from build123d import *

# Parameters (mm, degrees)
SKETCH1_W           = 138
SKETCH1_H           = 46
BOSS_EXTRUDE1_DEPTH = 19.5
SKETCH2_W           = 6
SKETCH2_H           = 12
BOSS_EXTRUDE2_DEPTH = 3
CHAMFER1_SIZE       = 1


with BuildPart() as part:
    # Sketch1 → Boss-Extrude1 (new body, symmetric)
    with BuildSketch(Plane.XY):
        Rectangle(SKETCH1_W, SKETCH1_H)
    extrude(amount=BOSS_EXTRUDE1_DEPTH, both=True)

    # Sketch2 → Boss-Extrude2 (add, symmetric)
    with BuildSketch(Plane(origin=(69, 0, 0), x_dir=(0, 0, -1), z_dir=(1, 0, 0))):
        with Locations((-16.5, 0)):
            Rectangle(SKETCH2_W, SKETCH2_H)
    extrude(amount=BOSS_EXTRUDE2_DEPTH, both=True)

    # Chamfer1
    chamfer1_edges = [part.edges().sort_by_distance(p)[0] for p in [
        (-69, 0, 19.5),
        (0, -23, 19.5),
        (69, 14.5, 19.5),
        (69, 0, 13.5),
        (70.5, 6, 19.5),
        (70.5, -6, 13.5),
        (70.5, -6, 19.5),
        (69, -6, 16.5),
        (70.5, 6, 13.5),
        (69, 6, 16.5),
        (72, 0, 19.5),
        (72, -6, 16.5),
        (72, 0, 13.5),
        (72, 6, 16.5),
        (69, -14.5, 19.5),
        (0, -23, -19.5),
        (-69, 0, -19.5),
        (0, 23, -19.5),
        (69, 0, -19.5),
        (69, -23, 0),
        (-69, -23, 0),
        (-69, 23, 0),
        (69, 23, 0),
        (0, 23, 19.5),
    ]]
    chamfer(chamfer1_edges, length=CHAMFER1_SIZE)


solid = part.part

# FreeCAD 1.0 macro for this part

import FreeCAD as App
import Part
import Sketcher
Q = App.Units.Quantity

doc = App.newDocument("Part")
params = doc.addObject("Spreadsheet::Sheet", "Params")
for row, (alias, value) in enumerate([
    ("sketch1_width", "138 mm"),
    ("sketch1_height", "46 mm"),
    ("pad1_length", "39 mm"),
    ("sketch2_width", "12 mm"),
    ("sketch2_height", "6 mm"),
    ("pad2_length", "6 mm"),
    ("chamfer_size", "1 mm"),
], start=1):
    params.set(f"A{row}", alias)
    params.set(f"B{row}", "=" + value)
    params.setAlias(f"B{row}", alias)

body = doc.addObject("PartDesign::Body", "Body")

# Sketch on XY plane
sketch1 = body.newObject("Sketcher::SketchObject", "Sketch")
sketch1.AttachmentSupport = (doc.getObject("XY_Plane"), [""])
sketch1.MapMode = "FlatFace"
sketch1.addGeometry([
    Part.LineSegment(App.Vector(-69, 23, 0), App.Vector(-69, -23, 0)),
    Part.LineSegment(App.Vector(-69, -23, 0), App.Vector(69, -23, 0)),
    Part.LineSegment(App.Vector(69, -23, 0), App.Vector(69, 23, 0)),
    Part.LineSegment(App.Vector(69, 23, 0), App.Vector(-69, 23, 0)),
], False)
sketch1.addConstraint([
    Sketcher.Constraint("Coincident", 0, 2, 1, 1),
    Sketcher.Constraint("Coincident", 1, 2, 2, 1),
    Sketcher.Constraint("Coincident", 2, 2, 3, 1),
    Sketcher.Constraint("Coincident", 3, 2, 0, 1),
    Sketcher.Constraint("Vertical", 0),
    Sketcher.Constraint("Horizontal", 1),
    Sketcher.Constraint("Vertical", 2),
    Sketcher.Constraint("Horizontal", 3),
    Sketcher.Constraint("Symmetric", 0, 2, 2, 2, -1, 1),
    Sketcher.Constraint("DistanceX", 1, 1, 1, 2, Q("138 mm")),
    Sketcher.Constraint("DistanceY", 0, 2, 0, 1, Q("46 mm")),
])
sketch1.setExpression("Constraints[9]", "Params.sketch1_width")
sketch1.setExpression("Constraints[10]", "Params.sketch1_height")
pad1 = body.newObject("PartDesign::Pad", "Pad")
pad1.Profile = sketch1
pad1.setExpression("Length", "Params.pad1_length")
pad1.Midplane = True

# Sketch on YZ plane
sketch2 = body.newObject("Sketcher::SketchObject", "Sketch001")
sketch2.AttachmentSupport = (doc.getObject("YZ_Plane"), [""])
sketch2.MapMode = "FlatFace"
sketch2.AttachmentOffset = App.Placement(App.Vector(0, 0, 69), App.Rotation())
sketch2.addGeometry([
    Part.LineSegment(App.Vector(6, 19.5, 0), App.Vector(-6, 19.5, 0)),
    Part.LineSegment(App.Vector(-6, 19.5, 0), App.Vector(-6, 13.5, 0)),
    Part.LineSegment(App.Vector(-6, 13.5, 0), App.Vector(6, 13.5, 0)),
    Part.LineSegment(App.Vector(6, 13.5, 0), App.Vector(6, 19.5, 0)),
], False)
sketch2.addConstraint([
    Sketcher.Constraint("Coincident", 0, 2, 1, 1),
    Sketcher.Constraint("Coincident", 1, 2, 2, 1),
    Sketcher.Constraint("Coincident", 2, 2, 3, 1),
    Sketcher.Constraint("Coincident", 3, 2, 0, 1),
    Sketcher.Constraint("Horizontal", 0),
    Sketcher.Constraint("Vertical", 1),
    Sketcher.Constraint("Horizontal", 2),
    Sketcher.Constraint("Vertical", 3),
    Sketcher.Constraint("DistanceX", 0, 2, 0, 1, Q("12 mm")),
    Sketcher.Constraint("DistanceY", 1, 2, 1, 1, Q("6 mm")),
    Sketcher.Constraint("DistanceX", 0, 2, -1, 1, Q("6 mm")),
    Sketcher.Constraint("DistanceY", -1, 1, 0, 2, Q("19.5 mm")),
])
sketch2.setExpression("Constraints[8]", "Params.sketch2_width")
sketch2.setExpression("Constraints[9]", "Params.sketch2_height")
pad2 = body.newObject("PartDesign::Pad", "Pad001")
pad2.Profile = sketch2
pad2.setExpression("Length", "Params.pad2_length")
pad2.Midplane = True
doc.recompute()

chamfer = body.newObject("PartDesign::Chamfer", "Chamfer")
chamfer.Base = (pad2, ["Edge1"])
chamfer.UseAllEdges = True
chamfer.setExpression("Size", "Params.chamfer_size")

doc.recompute()
